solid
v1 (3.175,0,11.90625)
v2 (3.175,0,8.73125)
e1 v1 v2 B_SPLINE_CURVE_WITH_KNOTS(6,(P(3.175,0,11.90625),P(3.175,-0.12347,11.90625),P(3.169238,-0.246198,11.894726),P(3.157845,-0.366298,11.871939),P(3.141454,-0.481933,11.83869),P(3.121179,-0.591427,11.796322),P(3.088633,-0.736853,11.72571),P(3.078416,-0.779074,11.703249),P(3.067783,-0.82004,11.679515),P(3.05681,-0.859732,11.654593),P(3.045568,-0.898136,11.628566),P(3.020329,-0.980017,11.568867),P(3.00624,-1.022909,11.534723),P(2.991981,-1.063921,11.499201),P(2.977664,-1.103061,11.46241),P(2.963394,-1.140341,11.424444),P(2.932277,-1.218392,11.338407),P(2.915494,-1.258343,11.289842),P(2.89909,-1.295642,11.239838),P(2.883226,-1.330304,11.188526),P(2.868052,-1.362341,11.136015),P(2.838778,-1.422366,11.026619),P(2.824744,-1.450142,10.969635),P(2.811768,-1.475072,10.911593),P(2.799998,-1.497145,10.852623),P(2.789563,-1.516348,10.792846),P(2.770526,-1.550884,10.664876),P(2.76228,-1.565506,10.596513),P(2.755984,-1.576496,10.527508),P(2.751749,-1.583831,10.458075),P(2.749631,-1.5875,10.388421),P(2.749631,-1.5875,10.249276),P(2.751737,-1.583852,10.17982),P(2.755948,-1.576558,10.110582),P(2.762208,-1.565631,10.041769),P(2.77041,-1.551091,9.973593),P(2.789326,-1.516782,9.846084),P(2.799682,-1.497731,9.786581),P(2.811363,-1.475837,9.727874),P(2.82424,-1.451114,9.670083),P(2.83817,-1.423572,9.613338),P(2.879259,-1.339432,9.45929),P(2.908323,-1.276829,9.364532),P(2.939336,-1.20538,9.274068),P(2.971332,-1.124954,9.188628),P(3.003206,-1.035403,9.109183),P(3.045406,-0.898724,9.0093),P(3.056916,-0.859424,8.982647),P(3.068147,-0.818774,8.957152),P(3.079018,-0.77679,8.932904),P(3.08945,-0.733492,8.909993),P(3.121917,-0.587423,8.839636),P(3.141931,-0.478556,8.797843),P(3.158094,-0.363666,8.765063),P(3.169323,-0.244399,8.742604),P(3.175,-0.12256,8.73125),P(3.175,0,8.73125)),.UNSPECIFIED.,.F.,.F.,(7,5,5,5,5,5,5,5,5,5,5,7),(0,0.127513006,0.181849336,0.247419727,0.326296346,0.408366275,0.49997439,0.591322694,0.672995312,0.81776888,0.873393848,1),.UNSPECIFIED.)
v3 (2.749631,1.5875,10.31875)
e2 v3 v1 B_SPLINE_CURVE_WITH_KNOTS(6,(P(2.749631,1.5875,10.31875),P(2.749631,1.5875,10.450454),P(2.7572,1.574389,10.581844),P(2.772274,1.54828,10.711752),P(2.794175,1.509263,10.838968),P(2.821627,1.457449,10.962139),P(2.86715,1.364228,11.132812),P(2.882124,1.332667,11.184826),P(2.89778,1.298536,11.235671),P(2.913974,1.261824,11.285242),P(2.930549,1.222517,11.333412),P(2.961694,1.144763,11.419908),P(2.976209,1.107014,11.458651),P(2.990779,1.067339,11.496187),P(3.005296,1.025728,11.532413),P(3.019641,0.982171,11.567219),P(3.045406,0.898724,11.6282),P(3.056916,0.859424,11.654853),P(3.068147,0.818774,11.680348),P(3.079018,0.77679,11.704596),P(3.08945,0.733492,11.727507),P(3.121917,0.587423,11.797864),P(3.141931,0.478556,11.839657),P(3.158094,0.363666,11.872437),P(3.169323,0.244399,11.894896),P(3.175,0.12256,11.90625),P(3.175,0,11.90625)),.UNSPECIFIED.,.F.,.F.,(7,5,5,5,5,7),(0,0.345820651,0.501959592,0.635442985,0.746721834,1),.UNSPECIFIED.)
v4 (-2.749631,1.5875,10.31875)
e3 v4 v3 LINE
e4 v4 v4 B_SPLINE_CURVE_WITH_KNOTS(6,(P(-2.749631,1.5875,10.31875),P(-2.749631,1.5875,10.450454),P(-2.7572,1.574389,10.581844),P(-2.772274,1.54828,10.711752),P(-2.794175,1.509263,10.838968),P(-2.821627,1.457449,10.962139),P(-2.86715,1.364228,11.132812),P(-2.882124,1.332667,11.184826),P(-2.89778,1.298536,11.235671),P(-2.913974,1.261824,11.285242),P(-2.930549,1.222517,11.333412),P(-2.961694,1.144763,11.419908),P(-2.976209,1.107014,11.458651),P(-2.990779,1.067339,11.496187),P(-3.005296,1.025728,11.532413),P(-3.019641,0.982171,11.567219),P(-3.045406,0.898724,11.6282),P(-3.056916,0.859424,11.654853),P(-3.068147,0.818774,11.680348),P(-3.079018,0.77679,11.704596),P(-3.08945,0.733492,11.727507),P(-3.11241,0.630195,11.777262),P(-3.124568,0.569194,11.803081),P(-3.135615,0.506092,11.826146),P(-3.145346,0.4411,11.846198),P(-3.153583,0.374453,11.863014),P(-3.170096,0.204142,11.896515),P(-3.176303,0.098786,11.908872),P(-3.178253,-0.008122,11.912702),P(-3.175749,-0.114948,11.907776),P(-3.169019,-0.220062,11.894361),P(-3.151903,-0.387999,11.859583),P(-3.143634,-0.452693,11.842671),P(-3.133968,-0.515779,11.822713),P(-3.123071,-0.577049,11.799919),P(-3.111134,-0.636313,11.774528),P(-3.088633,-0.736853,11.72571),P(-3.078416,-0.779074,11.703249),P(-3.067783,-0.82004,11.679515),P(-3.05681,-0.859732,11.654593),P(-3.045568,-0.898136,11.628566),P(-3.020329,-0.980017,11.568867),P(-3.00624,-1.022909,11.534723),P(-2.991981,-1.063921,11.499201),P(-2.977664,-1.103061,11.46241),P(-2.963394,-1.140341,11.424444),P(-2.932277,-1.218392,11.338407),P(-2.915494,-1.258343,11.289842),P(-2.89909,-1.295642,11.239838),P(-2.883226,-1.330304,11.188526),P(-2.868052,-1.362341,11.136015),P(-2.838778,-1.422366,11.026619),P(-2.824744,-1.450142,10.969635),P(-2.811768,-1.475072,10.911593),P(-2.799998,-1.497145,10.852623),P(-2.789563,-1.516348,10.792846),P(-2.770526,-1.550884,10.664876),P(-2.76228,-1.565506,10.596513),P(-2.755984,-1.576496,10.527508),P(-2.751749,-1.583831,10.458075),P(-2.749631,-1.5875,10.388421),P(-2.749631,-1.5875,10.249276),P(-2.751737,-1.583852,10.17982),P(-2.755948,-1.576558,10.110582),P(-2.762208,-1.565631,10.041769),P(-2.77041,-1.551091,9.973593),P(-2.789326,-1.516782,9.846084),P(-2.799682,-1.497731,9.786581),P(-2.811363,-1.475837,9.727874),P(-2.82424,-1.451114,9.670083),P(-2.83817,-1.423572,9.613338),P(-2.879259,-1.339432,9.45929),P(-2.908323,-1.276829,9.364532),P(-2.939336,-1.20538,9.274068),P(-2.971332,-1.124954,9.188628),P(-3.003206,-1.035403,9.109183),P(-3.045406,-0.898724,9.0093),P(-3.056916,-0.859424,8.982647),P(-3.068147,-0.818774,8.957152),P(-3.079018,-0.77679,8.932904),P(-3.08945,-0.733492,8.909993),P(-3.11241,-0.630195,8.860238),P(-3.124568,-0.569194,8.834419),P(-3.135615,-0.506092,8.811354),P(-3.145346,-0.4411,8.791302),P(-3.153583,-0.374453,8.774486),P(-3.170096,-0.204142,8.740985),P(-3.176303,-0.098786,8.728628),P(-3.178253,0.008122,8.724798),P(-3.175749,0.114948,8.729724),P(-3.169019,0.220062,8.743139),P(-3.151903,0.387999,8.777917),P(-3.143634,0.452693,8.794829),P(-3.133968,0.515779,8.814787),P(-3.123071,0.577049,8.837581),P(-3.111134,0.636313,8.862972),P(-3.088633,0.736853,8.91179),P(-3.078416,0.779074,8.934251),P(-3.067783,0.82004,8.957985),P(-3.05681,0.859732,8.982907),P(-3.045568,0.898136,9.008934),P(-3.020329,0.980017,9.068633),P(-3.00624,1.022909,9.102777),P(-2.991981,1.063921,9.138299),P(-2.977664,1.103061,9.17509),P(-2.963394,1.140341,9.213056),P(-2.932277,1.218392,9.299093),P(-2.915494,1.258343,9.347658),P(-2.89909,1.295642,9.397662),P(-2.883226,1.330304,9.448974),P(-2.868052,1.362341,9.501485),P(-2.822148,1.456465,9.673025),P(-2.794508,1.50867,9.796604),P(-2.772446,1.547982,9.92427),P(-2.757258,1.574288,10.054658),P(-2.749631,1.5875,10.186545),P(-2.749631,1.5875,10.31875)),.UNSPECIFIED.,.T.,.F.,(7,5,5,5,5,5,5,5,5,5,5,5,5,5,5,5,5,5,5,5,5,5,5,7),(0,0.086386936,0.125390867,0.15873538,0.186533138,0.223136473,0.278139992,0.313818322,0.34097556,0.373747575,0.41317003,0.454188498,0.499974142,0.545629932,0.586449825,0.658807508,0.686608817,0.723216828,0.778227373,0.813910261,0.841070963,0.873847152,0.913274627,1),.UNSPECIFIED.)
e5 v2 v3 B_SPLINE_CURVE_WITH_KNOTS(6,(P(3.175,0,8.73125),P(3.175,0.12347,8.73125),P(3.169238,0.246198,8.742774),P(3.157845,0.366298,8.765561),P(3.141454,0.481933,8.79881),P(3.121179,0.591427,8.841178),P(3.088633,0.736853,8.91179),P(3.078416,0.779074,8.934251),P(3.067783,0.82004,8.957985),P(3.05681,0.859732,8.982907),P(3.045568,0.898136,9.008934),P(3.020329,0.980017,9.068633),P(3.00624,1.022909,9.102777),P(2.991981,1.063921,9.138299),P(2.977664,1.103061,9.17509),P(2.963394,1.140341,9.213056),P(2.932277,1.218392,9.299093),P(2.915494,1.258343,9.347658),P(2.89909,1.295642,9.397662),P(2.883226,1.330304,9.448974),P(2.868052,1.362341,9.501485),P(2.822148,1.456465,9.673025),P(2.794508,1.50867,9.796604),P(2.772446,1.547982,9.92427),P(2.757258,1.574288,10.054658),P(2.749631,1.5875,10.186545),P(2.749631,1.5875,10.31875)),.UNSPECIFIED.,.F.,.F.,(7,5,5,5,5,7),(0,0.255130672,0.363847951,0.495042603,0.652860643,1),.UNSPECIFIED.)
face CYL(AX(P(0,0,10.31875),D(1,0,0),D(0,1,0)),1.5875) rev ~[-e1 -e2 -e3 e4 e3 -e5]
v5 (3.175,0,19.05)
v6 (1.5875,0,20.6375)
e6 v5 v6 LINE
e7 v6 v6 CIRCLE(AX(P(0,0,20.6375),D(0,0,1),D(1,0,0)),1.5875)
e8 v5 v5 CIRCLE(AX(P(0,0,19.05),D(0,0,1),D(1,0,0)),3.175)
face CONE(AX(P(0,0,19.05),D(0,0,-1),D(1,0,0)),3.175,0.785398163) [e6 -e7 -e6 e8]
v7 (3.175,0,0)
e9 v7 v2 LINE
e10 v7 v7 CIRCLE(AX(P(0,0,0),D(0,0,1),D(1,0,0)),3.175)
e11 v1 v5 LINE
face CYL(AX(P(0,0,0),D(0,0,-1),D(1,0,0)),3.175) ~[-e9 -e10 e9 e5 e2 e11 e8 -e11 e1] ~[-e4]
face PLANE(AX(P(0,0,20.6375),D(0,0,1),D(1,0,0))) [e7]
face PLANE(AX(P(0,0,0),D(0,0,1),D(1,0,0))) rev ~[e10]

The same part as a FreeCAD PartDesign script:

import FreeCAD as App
import Part
import Sketcher
from FreeCAD import Vector
Q = App.Units.Quantity


def edges_at(feature, points):
    """Names of the edges that pass closest to the given points."""
    edges = feature.Shape.Edges
    near = lambda p: min(range(len(edges)), key=lambda i: edges[i].distToShape(Part.Vertex(*p))[0])
    return sorted({f"Edge{near(p) + 1}" for p in points})

doc = App.newDocument("Part")
body = doc.addObject("PartDesign::Body", "Body")

# Sketch on XY plane
sketch1 = body.newObject("Sketcher::SketchObject", "Sketch")
sketch1.AttachmentSupport = (doc.getObject("XY_Plane"), [""])
sketch1.MapMode = "FlatFace"
sketch1.addGeometry(Part.Circle(Vector(0, 0, 0), Vector(0, 0, 1), 3.2), False)
sketch1.addConstraint([
    Sketcher.Constraint("Coincident", 0, 3, -1, 1),
    Sketcher.Constraint("Diameter", 0, Q("0.25 in")),
])
pad1 = body.newObject("PartDesign::Pad", "Pad")
pad1.Profile = sketch1
pad1.Length = Q("0.8125 in")
doc.recompute()

chamfer = body.newObject("PartDesign::Chamfer", "Chamfer")
chamfer.Base = (pad1, edges_at(pad1, [(-3.175, 0, 20.637)]))
chamfer.Size = Q("0.0625 in")

# Sketch on YZ plane
sketch2 = body.newObject("Sketcher::SketchObject", "Sketch001")
sketch2.AttachmentSupport = (doc.getObject("YZ_Plane"), [""])
sketch2.MapMode = "FlatFace"
sketch2.addGeometry(Part.Circle(Vector(0, 10.3, 0), Vector(0, 0, 1), 1.6), False)
sketch2.addConstraint([
    Sketcher.Constraint("PointOnObject", 0, 3, -2),
    Sketcher.Constraint("Diameter", 0, Q("0.125 in")),
    Sketcher.Constraint("DistanceY", -1, 1, 0, 3, Q("0.40625 in")),
])
pocket1 = body.newObject("PartDesign::Pocket", "Pocket")
pocket1.Profile = sketch2
pocket1.Length = Q("1 in")
pocket1.Midplane = True

doc.recompute()
